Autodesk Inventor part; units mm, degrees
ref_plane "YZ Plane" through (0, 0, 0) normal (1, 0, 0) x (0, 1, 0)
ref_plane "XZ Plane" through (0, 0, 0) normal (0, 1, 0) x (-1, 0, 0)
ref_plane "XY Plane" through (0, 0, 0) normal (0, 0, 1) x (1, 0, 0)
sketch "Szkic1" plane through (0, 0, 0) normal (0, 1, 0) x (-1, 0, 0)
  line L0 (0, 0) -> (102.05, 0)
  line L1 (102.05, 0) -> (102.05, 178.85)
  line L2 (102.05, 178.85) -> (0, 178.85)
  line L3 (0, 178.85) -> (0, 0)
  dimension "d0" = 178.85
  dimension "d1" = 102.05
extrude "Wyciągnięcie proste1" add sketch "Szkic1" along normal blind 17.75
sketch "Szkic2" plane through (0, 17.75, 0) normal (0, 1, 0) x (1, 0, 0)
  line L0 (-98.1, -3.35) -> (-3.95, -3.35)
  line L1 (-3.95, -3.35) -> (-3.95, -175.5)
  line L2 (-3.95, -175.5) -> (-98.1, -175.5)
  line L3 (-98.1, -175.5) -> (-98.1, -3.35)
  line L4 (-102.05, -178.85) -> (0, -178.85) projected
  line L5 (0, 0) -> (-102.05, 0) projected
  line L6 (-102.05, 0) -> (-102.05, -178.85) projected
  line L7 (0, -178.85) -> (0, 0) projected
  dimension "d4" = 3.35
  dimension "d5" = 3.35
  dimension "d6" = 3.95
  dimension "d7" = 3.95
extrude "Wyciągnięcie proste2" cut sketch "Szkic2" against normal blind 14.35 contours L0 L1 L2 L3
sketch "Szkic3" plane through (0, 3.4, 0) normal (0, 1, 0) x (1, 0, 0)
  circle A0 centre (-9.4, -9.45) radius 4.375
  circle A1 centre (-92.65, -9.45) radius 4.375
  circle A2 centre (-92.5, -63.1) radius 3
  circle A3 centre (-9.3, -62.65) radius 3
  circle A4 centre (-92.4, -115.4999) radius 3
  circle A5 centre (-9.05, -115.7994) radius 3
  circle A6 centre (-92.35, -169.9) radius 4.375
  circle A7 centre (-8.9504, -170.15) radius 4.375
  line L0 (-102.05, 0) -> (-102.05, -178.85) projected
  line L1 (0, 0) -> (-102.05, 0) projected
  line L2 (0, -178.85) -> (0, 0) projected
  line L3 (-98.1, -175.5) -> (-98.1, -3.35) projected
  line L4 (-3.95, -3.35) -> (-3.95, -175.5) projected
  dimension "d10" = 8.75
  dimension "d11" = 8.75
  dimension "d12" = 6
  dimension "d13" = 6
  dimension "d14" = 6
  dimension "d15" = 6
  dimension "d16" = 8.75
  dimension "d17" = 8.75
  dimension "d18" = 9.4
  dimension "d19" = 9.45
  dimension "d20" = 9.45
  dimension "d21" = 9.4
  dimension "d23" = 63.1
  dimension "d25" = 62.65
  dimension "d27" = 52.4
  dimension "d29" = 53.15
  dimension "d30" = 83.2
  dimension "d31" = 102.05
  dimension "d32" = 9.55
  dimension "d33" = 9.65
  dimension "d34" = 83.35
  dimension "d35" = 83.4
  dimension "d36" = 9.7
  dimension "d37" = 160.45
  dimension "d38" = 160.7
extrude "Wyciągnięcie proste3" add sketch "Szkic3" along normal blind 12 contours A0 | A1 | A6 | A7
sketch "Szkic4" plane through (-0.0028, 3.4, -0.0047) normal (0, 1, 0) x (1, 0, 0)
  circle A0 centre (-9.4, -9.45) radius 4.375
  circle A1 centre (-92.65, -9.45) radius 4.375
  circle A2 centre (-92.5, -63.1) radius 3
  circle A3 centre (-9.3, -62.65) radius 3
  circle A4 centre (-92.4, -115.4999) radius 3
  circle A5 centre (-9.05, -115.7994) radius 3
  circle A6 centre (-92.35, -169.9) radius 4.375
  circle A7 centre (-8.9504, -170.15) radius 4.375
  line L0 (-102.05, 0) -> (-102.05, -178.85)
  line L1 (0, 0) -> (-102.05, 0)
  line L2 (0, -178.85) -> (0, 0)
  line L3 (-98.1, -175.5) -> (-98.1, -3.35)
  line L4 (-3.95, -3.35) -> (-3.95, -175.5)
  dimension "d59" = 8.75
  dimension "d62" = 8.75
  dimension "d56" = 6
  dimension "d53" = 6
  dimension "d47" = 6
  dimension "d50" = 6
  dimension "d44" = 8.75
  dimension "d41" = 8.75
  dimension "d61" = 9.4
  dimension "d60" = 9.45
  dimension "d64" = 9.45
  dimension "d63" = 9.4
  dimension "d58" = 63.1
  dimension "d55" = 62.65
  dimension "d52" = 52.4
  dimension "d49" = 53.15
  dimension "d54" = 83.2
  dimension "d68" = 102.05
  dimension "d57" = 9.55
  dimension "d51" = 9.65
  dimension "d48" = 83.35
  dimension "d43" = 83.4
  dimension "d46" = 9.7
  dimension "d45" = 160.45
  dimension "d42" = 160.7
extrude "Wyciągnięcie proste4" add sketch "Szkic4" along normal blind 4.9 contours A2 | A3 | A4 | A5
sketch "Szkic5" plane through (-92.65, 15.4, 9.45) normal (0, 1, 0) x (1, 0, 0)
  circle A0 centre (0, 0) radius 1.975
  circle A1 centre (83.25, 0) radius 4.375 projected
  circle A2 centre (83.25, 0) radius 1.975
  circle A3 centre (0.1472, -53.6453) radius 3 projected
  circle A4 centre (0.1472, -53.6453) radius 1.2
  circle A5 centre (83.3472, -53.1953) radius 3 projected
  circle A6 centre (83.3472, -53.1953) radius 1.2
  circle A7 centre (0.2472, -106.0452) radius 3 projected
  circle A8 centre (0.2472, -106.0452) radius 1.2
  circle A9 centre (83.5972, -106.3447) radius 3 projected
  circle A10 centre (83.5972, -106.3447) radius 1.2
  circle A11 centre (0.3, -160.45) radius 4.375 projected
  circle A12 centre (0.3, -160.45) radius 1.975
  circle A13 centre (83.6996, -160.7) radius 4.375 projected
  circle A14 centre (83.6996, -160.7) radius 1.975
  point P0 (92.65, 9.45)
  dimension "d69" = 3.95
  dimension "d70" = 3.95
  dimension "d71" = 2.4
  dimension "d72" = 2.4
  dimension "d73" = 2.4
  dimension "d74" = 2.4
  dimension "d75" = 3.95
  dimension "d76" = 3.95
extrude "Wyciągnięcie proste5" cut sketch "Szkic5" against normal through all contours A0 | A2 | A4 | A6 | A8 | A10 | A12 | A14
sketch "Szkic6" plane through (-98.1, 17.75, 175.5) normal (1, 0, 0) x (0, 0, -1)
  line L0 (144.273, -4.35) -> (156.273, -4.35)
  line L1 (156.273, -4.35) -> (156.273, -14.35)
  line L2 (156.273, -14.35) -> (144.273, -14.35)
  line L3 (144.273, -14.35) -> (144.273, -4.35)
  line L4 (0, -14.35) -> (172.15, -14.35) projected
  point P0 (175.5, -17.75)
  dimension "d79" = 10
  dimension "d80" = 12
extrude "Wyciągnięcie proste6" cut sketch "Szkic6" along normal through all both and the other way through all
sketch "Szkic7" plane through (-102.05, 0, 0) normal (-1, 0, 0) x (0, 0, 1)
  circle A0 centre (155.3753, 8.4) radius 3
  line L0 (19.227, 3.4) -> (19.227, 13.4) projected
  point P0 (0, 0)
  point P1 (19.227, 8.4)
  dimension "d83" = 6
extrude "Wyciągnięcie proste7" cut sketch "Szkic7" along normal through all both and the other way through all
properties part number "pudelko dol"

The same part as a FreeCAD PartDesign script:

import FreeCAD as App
import Part
import Sketcher

V = App.Vector

doc = App.newDocument("Part")
body = doc.addObject("PartDesign::Body", "Body")

sketch1 = body.newObject("Sketcher::SketchObject", "Sketch")
sketch1.AttachmentSupport = (doc.getObject("XZ_Plane"), [""])
sketch1.MapMode = "FlatFace"
sketch1.addGeometry([
    Part.LineSegment(V(0, 179, 0), V(0, 0, 0)),
    Part.LineSegment(V(0, 0, 0), V(-102, 0, 0)),
    Part.LineSegment(V(-102, 0, 0), V(-102, 179, 0)),
    Part.LineSegment(V(-102, 179, 0), V(0, 179, 0)),
], False)
sketch1.addConstraint([
    Sketcher.Constraint("Coincident", 0, 2, 1, 1),
    Sketcher.Constraint("Coincident", 1, 2, 2, 1),
    Sketcher.Constraint("Coincident", 2, 2, 3, 1),
    Sketcher.Constraint("Coincident", 3, 2, 0, 1),
    Sketcher.Constraint("Vertical", 0),
    Sketcher.Constraint("Horizontal", 1),
    Sketcher.Constraint("Vertical", 2),
    Sketcher.Constraint("Horizontal", 3),
    Sketcher.Constraint("Coincident", 0, 2, -1, 1),
    Sketcher.Constraint("DistanceX", 1, 2, 1, 1, 102.05),
    Sketcher.Constraint("DistanceY", 0, 2, 0, 1, 178.85),
])
pad1 = body.newObject("PartDesign::Pad", "Pad")
pad1.Profile = sketch1
pad1.Length = 17.75
pad1.Reversed = True

sketch2 = body.newObject("Sketcher::SketchObject", "Sketch001")
sketch2.AttachmentSupport = (doc.getObject("XZ_Plane"), [""])
sketch2.MapMode = "FlatFace"
sketch2.AttachmentOffset = App.Placement(V(0, 0, -17.75), App.Rotation())
sketch2.addGeometry([
    Part.LineSegment(V(-4, 3, 0), V(-98, 3, 0)),
    Part.LineSegment(V(-98, 3, 0), V(-98, 176, 0)),
    Part.LineSegment(V(-98, 176, 0), V(-4, 176, 0)),
    Part.LineSegment(V(-4, 176, 0), V(-4, 3, 0)),
], False)
sketch2.addConstraint([
    Sketcher.Constraint("Coincident", 0, 2, 1, 1),
    Sketcher.Constraint("Coincident", 1, 2, 2, 1),
    Sketcher.Constraint("Coincident", 2, 2, 3, 1),
    Sketcher.Constraint("Coincident", 3, 2, 0, 1),
    Sketcher.Constraint("Horizontal", 0),
    Sketcher.Constraint("Vertical", 1),
    Sketcher.Constraint("Horizontal", 2),
    Sketcher.Constraint("Vertical", 3),
    Sketcher.Constraint("DistanceY", -1, 1, 0, 2, 3.35),
    Sketcher.Constraint("DistanceX", 2, 2, -1, 1, 3.95),
    Sketcher.Constraint("DistanceX", 0, 2, 0, 1, 94.15),
    Sketcher.Constraint("DistanceY", 1, 1, 1, 2, 172.15),
])
pocket1 = body.newObject("PartDesign::Pocket", "Pocket")
pocket1.Profile = sketch2
pocket1.Length = 14.35
pocket1.Reversed = True

sketch3 = body.newObject("Sketcher::SketchObject", "Sketch002")
sketch3.AttachmentSupport = (doc.getObject("XZ_Plane"), [""])
sketch3.MapMode = "FlatFace"
sketch3.AttachmentOffset = App.Placement(V(0, 0, -3.4), App.Rotation())
sketch3.addGeometry([
    Part.Circle(V(-9.4, 9.4, 0), V(0, 0, 1), 4.4),
    Part.Circle(V(-92.7, 9.4, 0), V(0, 0, 1), 4.4),
    Part.Circle(V(-92.3, 169.9, 0), V(0, 0, 1), 4.4),
    Part.Circle(V(-9, 170.2, 0), V(0, 0, 1), 4.4),
], False)
sketch3.addConstraint([
    Sketcher.Constraint("Equal", 0, 1),
    Sketcher.Constraint("Equal", 1, 2),
    Sketcher.Constraint("Equal", 2, 3),
    Sketcher.Constraint("Horizontal", 0, 3, 1, 3),
    Sketcher.Constraint("Diameter", 0, 8.75),
    Sketcher.Constraint("DistanceX", 0, 3, -1, 1, 9.4),
    Sketcher.Constraint("DistanceY", 0, 3, 3, 3, 160.7),
    Sketcher.Constraint("DistanceY", -1, 1, 0, 3, 9.45),
    Sketcher.Constraint("DistanceY", 1, 3, 2, 3, 160.45),
    Sketcher.Constraint("DistanceX", 1, 3, 2, 3, 0.3),
    Sketcher.Constraint("DistanceX", 2, 3, 3, 3, 83.3996),
    Sketcher.Constraint("DistanceX", 1, 3, -1, 1, 92.65),
])
pad2 = body.newObject("PartDesign::Pad", "Pad001")
pad2.Profile = sketch3
pad2.Length = 12
pad2.Reversed = True

sketch4 = body.newObject("Sketcher::SketchObject", "Sketch003")
sketch4.AttachmentSupport = (doc.getObject("XZ_Plane"), [""])
sketch4.MapMode = "FlatFace"
sketch4.AttachmentOffset = App.Placement(V(0, 0, -3.4), App.Rotation())
sketch4.addGeometry([
    Part.Circle(V(-92.5, 63.1, 0), V(0, 0, 1), 3),
    Part.Circle(V(-9.3, 62.6, 0), V(0, 0, 1), 3),
    Part.Circle(V(-92.4, 115.5, 0), V(0, 0, 1), 3),
    Part.Circle(V(-9.1, 115.8, 0), V(0, 0, 1), 3),
], False)
sketch4.addConstraint([
    Sketcher.Constraint("Equal", 0, 1),
    Sketcher.Constraint("Equal", 1, 2),
    Sketcher.Constraint("Equal", 2, 3),
    Sketcher.Constraint("Diameter", 0, 6.0),
    Sketcher.Constraint("DistanceX", 0, 3, 1, 3, 83.2),
    Sketcher.Constraint("DistanceY", 0, 3, 2, 3, 52.4),
    Sketcher.Constraint("DistanceX", 2, 3, 3, 3, 83.35),
    Sketcher.Constraint("DistanceX", 0, 3, 2, 3, 0.1),
    Sketcher.Constraint("DistanceY", 1, 3, 3, 3, 53.1494),
    Sketcher.Constraint("DistanceY", 1, 3, 0, 3, 0.45),
    Sketcher.Constraint("DistanceX", 0, 3, -1, 1, 92.5028),
    Sketcher.Constraint("DistanceY", -1, 1, 0, 3, 63.0953),
])
pad3 = body.newObject("PartDesign::Pad", "Pad002")
pad3.Profile = sketch4
pad3.Length = 4.9
pad3.Reversed = True

sketch5 = body.newObject("Sketcher::SketchObject", "Sketch004")
sketch5.AttachmentSupport = (doc.getObject("XZ_Plane"), [""])
sketch5.MapMode = "FlatFace"
sketch5.AttachmentOffset = App.Placement(V(0, 0, -15.4), App.Rotation())
sketch5.addGeometry([
    Part.Circle(V(-92.7, 9.4, 0), V(0, 0, 1), 2),
    Part.Circle(V(-9.4, 9.4, 0), V(0, 0, 1), 2),
    Part.Circle(V(-92.5, 63.1, 0), V(0, 0, 1), 1.2),
    Part.Circle(V(-9.3, 62.6, 0), V(0, 0, 1), 1.2),
    Part.Circle(V(-92.4, 115.5, 0), V(0, 0, 1), 1.2),
    Part.Circle(V(-9.1, 115.8, 0), V(0, 0, 1), 1.2),
    Part.Circle(V(-92.3, 169.9, 0), V(0, 0, 1), 2),
    Part.Circle(V(-9, 170.2, 0), V(0, 0, 1), 2),
], False)
sketch5.addConstraint([
    Sketcher.Constraint("Equal", 0, 1),
    Sketcher.Constraint("Equal", 2, 3),
    Sketcher.Constraint("Equal", 3, 4),
    Sketcher.Constraint("Equal", 4, 5),
    Sketcher.Constraint("Equal", 1, 6),
    Sketcher.Constraint("Equal", 6, 7),
    Sketcher.Constraint("Horizontal", 0, 3, 1, 3),
    Sketcher.Constraint("Diameter", 2, 2.4),
    Sketcher.Constraint("Diameter", 0, 3.95),
    Sketcher.Constraint("DistanceX", 1, 3, -1, 1, 9.4),
    Sketcher.Constraint("DistanceY", -1, 1, 6, 3, 169.9),
    Sketcher.Constraint("DistanceX", 2, 3, 3, 3, 83.2),
    Sketcher.Constraint("DistanceX", 2, 3, 4, 3, 0.1),
    Sketcher.Constraint("DistanceY", 2, 3, 4, 3, 52.4),
    Sketcher.Constraint("DistanceX", 0, 3, 6, 3, 0.3),
    Sketcher.Constraint("DistanceX", 0, 3, -1, 1, 92.65),
    Sketcher.Constraint("DistanceY", -1, 1, 0, 3, 9.45),
    Sketcher.Constraint("DistanceY", -1, 1, 7, 3, 170.15),
    Sketcher.Constraint("DistanceY", 3, 3, 2, 3, 0.45),
    Sketcher.Constraint("DistanceX", 3, 3, 5, 3, 0.25),
    Sketcher.Constraint("DistanceX", 2, 3, -1, 1, 92.5028),
    Sketcher.Constraint("DistanceY", -1, 1, 2, 3, 63.0953),
    Sketcher.Constraint("DistanceY", -1, 1, 5, 3, 115.7947),
    Sketcher.Constraint("DistanceX", 7, 3, -1, 1, 8.9504),
])
pocket2 = body.newObject("PartDesign::Pocket", "Pocket001")
pocket2.Profile = sketch5
pocket2.Type = "ThroughAll"
pocket2.Reversed = True

sketch6 = body.newObject("Sketcher::SketchObject", "Sketch005")
sketch6.AttachmentSupport = (doc.getObject("YZ_Plane"), [""])
sketch6.MapMode = "FlatFace"
sketch6.AttachmentOffset = App.Placement(V(0, 0, -98.1), App.Rotation())
sketch6.addGeometry([
    Part.LineSegment(V(13, 19, 0), V(13, 31, 0)),
    Part.LineSegment(V(13, 31, 0), V(3, 31, 0)),
    Part.LineSegment(V(3, 31, 0), V(3, 19, 0)),
    Part.LineSegment(V(3, 19, 0), V(13, 19, 0)),
], False)
sketch6.addConstraint([
    Sketcher.Constraint("Coincident", 0, 2, 1, 1),
    Sketcher.Constraint("Coincident", 1, 2, 2, 1),
    Sketcher.Constraint("Coincident", 2, 2, 3, 1),
    Sketcher.Constraint("Coincident", 3, 2, 0, 1),
    Sketcher.Constraint("Vertical", 0),
    Sketcher.Constraint("Horizontal", 1),
    Sketcher.Constraint("Vertical", 2),
    Sketcher.Constraint("Horizontal", 3),
    Sketcher.Constraint("DistanceX", 1, 2, 1, 1, 10.0),
    Sketcher.Constraint("DistanceY", 0, 1, 0, 2, 12.0),
    Sketcher.Constraint("DistanceX", -1, 1, 0, 2, 13.4),
    Sketcher.Constraint("DistanceY", -1, 1, 0, 2, 31.227),
])
pocket3 = body.newObject("PartDesign::Pocket", "Pocket002")
pocket3.Profile = sketch6
pocket3.Type = "ThroughAll"
pocket3.Midplane = True

sketch7 = body.newObject("Sketcher::SketchObject", "Sketch006")
sketch7.AttachmentSupport = (doc.getObject("YZ_Plane"), [""])
sketch7.MapMode = "FlatFace"
sketch7.AttachmentOffset = App.Placement(V(0, 0, -102.05), App.Rotation())
sketch7.addGeometry(Part.Circle(V(8.4, 155.4, 0), V(0, 0, 1), 3), False)
sketch7.addConstraint([
    Sketcher.Constraint("Diameter", 0, 6.0),
    Sketcher.Constraint("DistanceX", -1, 1, 0, 3, 8.4),
    Sketcher.Constraint("DistanceY", -1, 1, 0, 3, 155.3753),
])
pocket4 = body.newObject("PartDesign::Pocket", "Pocket003")
pocket4.Profile = sketch7
pocket4.Type = "ThroughAll"
pocket4.Midplane = True

doc.recompute()
